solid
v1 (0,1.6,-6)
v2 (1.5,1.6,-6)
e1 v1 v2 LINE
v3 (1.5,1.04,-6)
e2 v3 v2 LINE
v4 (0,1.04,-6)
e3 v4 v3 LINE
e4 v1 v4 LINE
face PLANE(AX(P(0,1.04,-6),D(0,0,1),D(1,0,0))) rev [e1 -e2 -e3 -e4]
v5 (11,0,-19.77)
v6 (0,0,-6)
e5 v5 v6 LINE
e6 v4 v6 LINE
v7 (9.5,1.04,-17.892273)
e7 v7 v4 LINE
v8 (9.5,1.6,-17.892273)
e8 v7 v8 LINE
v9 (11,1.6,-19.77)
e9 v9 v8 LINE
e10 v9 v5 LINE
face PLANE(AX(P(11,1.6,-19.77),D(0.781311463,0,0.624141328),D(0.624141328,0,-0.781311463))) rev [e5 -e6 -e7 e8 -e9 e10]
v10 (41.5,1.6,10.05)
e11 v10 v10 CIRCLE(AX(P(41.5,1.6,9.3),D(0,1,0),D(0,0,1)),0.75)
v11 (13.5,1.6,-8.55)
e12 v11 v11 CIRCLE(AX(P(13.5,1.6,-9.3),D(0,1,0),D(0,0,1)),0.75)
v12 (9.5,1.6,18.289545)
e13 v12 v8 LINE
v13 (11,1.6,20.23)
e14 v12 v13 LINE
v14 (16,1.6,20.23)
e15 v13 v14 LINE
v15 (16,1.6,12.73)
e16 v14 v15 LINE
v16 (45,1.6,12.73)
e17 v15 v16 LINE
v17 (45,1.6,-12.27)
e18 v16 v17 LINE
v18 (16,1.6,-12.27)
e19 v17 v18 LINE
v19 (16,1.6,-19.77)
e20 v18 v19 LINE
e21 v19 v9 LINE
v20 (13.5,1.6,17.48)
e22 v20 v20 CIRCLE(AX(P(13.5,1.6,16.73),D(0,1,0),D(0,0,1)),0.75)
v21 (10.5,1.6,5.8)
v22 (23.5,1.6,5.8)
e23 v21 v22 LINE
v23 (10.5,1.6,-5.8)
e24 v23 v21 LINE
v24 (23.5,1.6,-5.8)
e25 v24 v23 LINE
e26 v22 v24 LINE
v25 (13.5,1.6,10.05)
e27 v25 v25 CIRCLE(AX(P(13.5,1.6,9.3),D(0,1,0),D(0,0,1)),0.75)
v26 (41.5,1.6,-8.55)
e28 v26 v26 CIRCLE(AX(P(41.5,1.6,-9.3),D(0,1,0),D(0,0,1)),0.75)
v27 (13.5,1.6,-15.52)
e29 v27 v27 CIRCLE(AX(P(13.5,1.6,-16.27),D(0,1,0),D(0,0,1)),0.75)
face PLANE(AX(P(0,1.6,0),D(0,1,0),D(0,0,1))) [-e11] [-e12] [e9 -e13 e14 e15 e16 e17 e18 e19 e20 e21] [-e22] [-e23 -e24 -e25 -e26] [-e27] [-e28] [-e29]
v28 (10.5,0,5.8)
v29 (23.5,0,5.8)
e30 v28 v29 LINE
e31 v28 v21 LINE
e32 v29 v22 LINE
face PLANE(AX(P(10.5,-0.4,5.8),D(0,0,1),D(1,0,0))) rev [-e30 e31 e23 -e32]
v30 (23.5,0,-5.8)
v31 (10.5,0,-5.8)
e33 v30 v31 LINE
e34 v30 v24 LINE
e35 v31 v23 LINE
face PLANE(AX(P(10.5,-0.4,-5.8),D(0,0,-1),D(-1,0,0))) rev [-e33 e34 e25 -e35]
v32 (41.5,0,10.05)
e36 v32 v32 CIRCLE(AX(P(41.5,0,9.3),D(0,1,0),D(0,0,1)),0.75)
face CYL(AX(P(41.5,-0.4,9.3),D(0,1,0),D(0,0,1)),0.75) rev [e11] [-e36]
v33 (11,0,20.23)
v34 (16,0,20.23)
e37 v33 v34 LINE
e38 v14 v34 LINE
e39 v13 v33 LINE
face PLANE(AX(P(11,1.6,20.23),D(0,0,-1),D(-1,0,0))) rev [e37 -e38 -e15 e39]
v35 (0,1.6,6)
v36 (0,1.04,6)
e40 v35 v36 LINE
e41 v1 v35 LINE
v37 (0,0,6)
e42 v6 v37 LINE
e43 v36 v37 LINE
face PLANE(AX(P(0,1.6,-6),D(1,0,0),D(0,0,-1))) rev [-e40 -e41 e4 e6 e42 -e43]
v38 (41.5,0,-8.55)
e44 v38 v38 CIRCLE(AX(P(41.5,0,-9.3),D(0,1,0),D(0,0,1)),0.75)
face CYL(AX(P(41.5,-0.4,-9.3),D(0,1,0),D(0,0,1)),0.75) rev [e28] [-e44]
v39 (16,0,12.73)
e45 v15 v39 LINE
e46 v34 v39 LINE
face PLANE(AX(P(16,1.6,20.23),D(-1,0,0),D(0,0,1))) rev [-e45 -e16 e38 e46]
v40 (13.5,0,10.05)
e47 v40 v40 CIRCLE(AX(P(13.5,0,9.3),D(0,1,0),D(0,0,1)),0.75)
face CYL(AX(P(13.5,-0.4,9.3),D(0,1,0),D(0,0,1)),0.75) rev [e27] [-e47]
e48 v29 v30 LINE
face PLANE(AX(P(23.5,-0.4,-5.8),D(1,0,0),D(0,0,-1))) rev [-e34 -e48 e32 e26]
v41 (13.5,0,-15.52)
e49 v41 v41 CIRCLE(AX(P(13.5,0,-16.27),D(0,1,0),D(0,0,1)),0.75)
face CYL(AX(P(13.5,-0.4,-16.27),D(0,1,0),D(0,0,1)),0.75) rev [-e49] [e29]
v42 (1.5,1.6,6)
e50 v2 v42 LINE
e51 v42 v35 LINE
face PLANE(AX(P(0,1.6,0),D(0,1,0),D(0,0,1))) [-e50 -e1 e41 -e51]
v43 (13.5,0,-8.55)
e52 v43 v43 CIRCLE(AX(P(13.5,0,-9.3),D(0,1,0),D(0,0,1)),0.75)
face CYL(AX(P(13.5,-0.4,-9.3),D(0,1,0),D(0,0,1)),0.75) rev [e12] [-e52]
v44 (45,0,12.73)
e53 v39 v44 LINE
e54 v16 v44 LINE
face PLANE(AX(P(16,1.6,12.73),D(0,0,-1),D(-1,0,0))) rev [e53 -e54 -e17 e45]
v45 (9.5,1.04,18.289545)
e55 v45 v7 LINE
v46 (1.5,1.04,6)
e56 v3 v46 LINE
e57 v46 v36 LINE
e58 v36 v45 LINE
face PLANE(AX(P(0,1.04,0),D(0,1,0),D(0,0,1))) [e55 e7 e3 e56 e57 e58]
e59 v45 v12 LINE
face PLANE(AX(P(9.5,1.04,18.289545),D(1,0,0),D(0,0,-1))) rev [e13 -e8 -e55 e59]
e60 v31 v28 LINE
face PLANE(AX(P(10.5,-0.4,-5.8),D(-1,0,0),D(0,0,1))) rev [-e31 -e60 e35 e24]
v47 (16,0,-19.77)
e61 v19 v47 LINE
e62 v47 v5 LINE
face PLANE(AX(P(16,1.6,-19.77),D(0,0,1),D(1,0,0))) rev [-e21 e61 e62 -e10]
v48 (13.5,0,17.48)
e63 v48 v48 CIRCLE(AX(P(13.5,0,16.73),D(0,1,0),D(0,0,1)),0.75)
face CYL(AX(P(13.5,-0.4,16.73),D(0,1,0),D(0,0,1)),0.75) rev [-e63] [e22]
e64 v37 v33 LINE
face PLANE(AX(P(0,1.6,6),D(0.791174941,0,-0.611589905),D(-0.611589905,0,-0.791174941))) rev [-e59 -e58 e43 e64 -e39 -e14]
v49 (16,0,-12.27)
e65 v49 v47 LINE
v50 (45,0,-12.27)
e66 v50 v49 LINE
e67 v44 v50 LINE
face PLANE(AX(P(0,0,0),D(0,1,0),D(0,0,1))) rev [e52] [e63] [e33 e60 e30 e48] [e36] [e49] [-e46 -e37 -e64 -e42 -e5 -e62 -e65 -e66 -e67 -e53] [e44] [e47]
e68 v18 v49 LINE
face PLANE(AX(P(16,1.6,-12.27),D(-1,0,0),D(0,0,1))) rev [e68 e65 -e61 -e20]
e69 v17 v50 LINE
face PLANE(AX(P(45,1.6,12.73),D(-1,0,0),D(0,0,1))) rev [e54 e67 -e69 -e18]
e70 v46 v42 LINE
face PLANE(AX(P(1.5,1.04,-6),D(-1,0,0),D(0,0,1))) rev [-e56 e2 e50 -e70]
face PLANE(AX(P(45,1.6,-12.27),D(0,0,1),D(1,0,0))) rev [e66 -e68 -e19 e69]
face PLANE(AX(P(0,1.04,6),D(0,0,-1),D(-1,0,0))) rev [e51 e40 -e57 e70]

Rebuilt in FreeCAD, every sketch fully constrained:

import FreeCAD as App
import Part
import Sketcher

V = App.Vector


def add_polygon(sketch, points):
    """Adds a closed chain of lines whose ends are joined by coincident constraints."""
    first, n = sketch.GeometryCount, len(points)
    for a, b in zip(points, points[1:] + points[:1]):
        sketch.addGeometry(Part.LineSegment(App.Vector(*a, 0), App.Vector(*b, 0)), False)
    for i in range(n):
        sketch.addConstraint(Sketcher.Constraint("Coincident", first + i, 2, first + (i + 1) % n, 1))

doc = App.newDocument("Part")
params = doc.addObject("Spreadsheet::Sheet", "Params")
for row, (alias, value) in enumerate([
    ("sketch1_width", "5 mm"),
    ("sketch1_width2", "29 mm"),
    ("sketch1_height", "12 mm"),
    ("sketch1_height2", "25 mm"),
    ("sketch1_height3", "7.5 mm"),
    ("pad1_length", "1.6 mm"),
    ("sketch2_height", "12 mm"),
    ("sketch2_width", "1.5 mm"),
    ("pocket1_length", "0.56 mm"),
    ("sketch3_width", "13 mm"),
    ("sketch3_height", "11.6 mm"),
    ("pocket2_length", "2 mm"),
    ("sketch4_diameter", "1.5 mm"),
    ("pocket3_length", "2 mm"),
], start=1):
    params.set(f"A{row}", alias)
    params.set(f"B{row}", "=" + value)
    params.setAlias(f"B{row}", alias)

body = doc.addObject("PartDesign::Body", "Body")

sketch1 = doc.addObject("Sketcher::SketchObject", "Sketch")
body.addObject(sketch1)
sketch1.AttachmentSupport = (doc.XZ_Plane, [""])
sketch1.MapMode = "FlatFace"
add_polygon(sketch1, [(0, -6), (0, 6), (11, 20), (16, 20), (16, 13), (45, 13), (45, -12), (16, -12), (16, -20), (11, -20)])
sketch1.addConstraint([
    Sketcher.Constraint("Vertical", 0),
    Sketcher.Constraint("Horizontal", 2),
    Sketcher.Constraint("Vertical", 3),
    Sketcher.Constraint("Horizontal", 4),
    Sketcher.Constraint("Vertical", 5),
    Sketcher.Constraint("Horizontal", 6),
    Sketcher.Constraint("Vertical", 7),
    Sketcher.Constraint("Horizontal", 8),
    Sketcher.Constraint("Symmetric", 0, 2, 9, 2, -1, 1),
    Sketcher.Constraint("Vertical", 3, 2, 6, 2),
    Sketcher.Constraint("Vertical", 1, 2, 8, 2),
    Sketcher.Constraint("Equal", 3, 7),
    Sketcher.Constraint("DistanceX", 2, 1, 2, 2, 5.0),
    Sketcher.Constraint("DistanceX", 4, 1, 4, 2, 29.0),
    Sketcher.Constraint("DistanceY", 0, 1, 0, 2, 12.0),
    Sketcher.Constraint("DistanceY", 5, 2, 5, 1, 25.0),
    Sketcher.Constraint("DistanceY", 3, 2, 3, 1, 7.5),
    Sketcher.Constraint("DistanceX", -1, 1, 1, 2, 11.0),
    Sketcher.Constraint("DistanceY", -1, 1, 1, 2, 20.23),
])
sketch1.setExpression("Constraints[22]", "Params.sketch1_width")
sketch1.setExpression("Constraints[23]", "Params.sketch1_width2")
sketch1.setExpression("Constraints[24]", "Params.sketch1_height")
sketch1.setExpression("Constraints[25]", "Params.sketch1_height2")
sketch1.setExpression("Constraints[26]", "Params.sketch1_height3")
pad1 = doc.addObject("PartDesign::Pad", "Pad")
body.addObject(pad1)
pad1.Profile = sketch1
pad1.setExpression("Length", "Params.pad1_length")
pad1.Reversed = True

sketch2 = doc.addObject("Sketcher::SketchObject", "Sketch001")
body.addObject(sketch2)
sketch2.AttachmentSupport = (doc.XZ_Plane, [""])
sketch2.MapMode = "FlatFace"
sketch2.AttachmentOffset = App.Placement(V(0, 0, -1.6), App.Rotation())
add_polygon(sketch2, [(0, 6), (9.5, 18.3), (9.5, -17.9), (0, -6), (1.5, -6), (1.5, 6)])
sketch2.addConstraint([
    Sketcher.Constraint("Vertical", 1),
    Sketcher.Constraint("Horizontal", 3),
    Sketcher.Constraint("Vertical", 4),
    Sketcher.Constraint("Horizontal", 5),
    Sketcher.Constraint("Symmetric", 2, 2, 5, 2, -1, 1),
    Sketcher.Constraint("PointOnObject", 2, 2, -2),
    Sketcher.Constraint("DistanceY", 4, 1, 4, 2, 12.0),
    Sketcher.Constraint("DistanceX", 3, 1, 3, 2, 1.5),
    Sketcher.Constraint("DistanceX", 3, 2, 1, 2, 8.0),
    Sketcher.Constraint("DistanceY", 1, 2, 1, 1, 36.181818),
    Sketcher.Constraint("Distance", 2, 15.220912),
])
sketch2.setExpression("Constraints[12]", "Params.sketch2_height")
sketch2.setExpression("Constraints[13]", "Params.sketch2_width")
pocket1 = doc.addObject("PartDesign::Pocket", "Pocket")
body.addObject(pocket1)
pocket1.Profile = sketch2
pocket1.setExpression("Length", "Params.pocket1_length")
pocket1.Reversed = True

sketch3 = doc.addObject("Sketcher::SketchObject", "Sketch002")
body.addObject(sketch3)
sketch3.AttachmentSupport = (doc.XZ_Plane, [""])
sketch3.MapMode = "FlatFace"
sketch3.AttachmentOffset = App.Placement(V(0, 0, -1.6), App.Rotation())
add_polygon(sketch3, [(10, -6), (10, 6), (24, 6), (24, -6)])
sketch3.addConstraint([
    Sketcher.Constraint("Vertical", 0),
    Sketcher.Constraint("Horizontal", 1),
    Sketcher.Constraint("Vertical", 2),
    Sketcher.Constraint("Horizontal", 3),
    Sketcher.Constraint("DistanceX", 1, 1, 1, 2, 13.0),
    Sketcher.Constraint("DistanceY", 0, 1, 0, 2, 11.6),
    Sketcher.Constraint("DistanceX", -1, 1, 0, 2, 10.5),
    Sketcher.Constraint("DistanceY", -1, 1, 0, 2, 5.8),
])
sketch3.setExpression("Constraints[8]", "Params.sketch3_width")
sketch3.setExpression("Constraints[9]", "Params.sketch3_height")
pocket2 = doc.addObject("PartDesign::Pocket", "Pocket001")
body.addObject(pocket2)
pocket2.Profile = sketch3
pocket2.setExpression("Length", "Params.pocket2_length")
pocket2.Reversed = True

sketch4 = doc.addObject("Sketcher::SketchObject", "Sketch003")
body.addObject(sketch4)
sketch4.AttachmentSupport = (doc.XZ_Plane, [""])
sketch4.MapMode = "FlatFace"
sketch4.AttachmentOffset = App.Placement(V(0, 0, -1.6), App.Rotation())
sketch4.addGeometry([
    Part.Circle(V(13.5, -16.3, 0), V(0, 0, 1), 0.8),
    Part.Circle(V(13.5, -9.3, 0), V(0, 0, 1), 0.8),
    Part.Circle(V(41.5, -9.3, 0), V(0, 0, 1), 0.8),
    Part.Circle(V(41.5, 9.3, 0), V(0, 0, 1), 0.8),
    Part.Circle(V(13.5, 9.3, 0), V(0, 0, 1), 0.8),
    Part.Circle(V(13.5, 16.7, 0), V(0, 0, 1), 0.8),
], False)
sketch4.addConstraint([
    Sketcher.Constraint("Equal", 0, 1),
    Sketcher.Constraint("Equal", 1, 2),
    Sketcher.Constraint("Equal", 2, 3),
    Sketcher.Constraint("Equal", 3, 4),
    Sketcher.Constraint("Equal", 4, 5),
    Sketcher.Constraint("Symmetric", 2, 3, 3, 3, -1),
    Sketcher.Constraint("Symmetric", 1, 3, 4, 3, -1),
    Sketcher.Constraint("Horizontal", 1, 3, 2, 3),
    Sketcher.Constraint("Vertical", 0, 3, 1, 3),
    Sketcher.Constraint("Vertical", 4, 3, 5, 3),
    Sketcher.Constraint("Diameter", 0, 1.5),
    Sketcher.Constraint("DistanceX", 1, 3, 2, 3, 28.0),
    Sketcher.Constraint("DistanceY", 0, 3, 5, 3, 33.0),
    Sketcher.Constraint("DistanceX", -1, 1, 0, 3, 13.5),
    Sketcher.Constraint("DistanceY", 1, 3, -1, 1, 9.3),
    Sketcher.Constraint("DistanceY", 0, 3, -1, 1, 16.27),
])
sketch4.setExpression("Constraints[10]", "Params.sketch4_diameter")
pocket3 = doc.addObject("PartDesign::Pocket", "Pocket002")
body.addObject(pocket3)
pocket3.Profile = sketch4
pocket3.setExpression("Length", "Params.pocket3_length")
pocket3.Reversed = True

doc.recompute()
